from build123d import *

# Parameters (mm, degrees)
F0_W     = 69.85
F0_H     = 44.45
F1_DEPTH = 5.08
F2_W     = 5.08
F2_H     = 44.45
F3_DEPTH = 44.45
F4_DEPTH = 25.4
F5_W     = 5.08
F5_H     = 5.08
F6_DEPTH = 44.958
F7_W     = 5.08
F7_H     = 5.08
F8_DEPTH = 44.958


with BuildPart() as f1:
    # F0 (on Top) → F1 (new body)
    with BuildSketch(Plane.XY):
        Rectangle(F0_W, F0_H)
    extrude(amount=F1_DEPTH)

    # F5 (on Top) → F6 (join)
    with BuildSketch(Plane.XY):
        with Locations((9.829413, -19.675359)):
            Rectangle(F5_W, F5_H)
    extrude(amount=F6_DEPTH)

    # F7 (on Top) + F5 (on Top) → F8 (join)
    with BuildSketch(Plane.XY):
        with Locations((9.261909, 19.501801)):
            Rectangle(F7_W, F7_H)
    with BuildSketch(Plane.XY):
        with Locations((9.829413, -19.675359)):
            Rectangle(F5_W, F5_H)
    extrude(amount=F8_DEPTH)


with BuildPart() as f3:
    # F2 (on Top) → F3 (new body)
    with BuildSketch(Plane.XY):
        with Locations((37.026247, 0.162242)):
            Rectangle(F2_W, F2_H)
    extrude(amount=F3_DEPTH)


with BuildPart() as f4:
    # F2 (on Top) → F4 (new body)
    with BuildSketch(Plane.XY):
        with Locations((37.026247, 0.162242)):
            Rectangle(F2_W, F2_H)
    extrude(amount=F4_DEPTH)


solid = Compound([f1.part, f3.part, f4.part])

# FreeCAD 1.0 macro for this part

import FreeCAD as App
import Part
import Sketcher

V = App.Vector
Q = App.Units.Quantity


def add_polygon(sketch, points):
    """Adds a closed chain of lines whose ends are joined by coincident constraints."""
    first, n = sketch.GeometryCount, len(points)
    for a, b in zip(points, points[1:] + points[:1]):
        sketch.addGeometry(Part.LineSegment(App.Vector(*a, 0), App.Vector(*b, 0)), False)
    for i in range(n):
        sketch.addConstraint(Sketcher.Constraint("Coincident", first + i, 2, first + (i + 1) % n, 1))

doc = App.newDocument("Part")
body = doc.addObject("PartDesign::Body", "Body")

# Sketch on XY plane
sketch1 = body.newObject("Sketcher::SketchObject", "Sketch")
sketch1.AttachmentSupport = (doc.getObject("XY_Plane"), [""])
sketch1.MapMode = "FlatFace"
add_polygon(sketch1, [(-34.925, 22.225), (-34.925, -22.225), (34.925, -22.225), (34.925, 22.225)])  # lines 0-3
sketch1.addConstraint([
    Sketcher.Constraint("Vertical", 0),
    Sketcher.Constraint("Horizontal", 1),
    Sketcher.Constraint("Vertical", 2),
    Sketcher.Constraint("Horizontal", 3),
    Sketcher.Constraint("Symmetric", 0, 2, 2, 2, -1, 1),
    Sketcher.Constraint("DistanceX", 1, 1, 1, 2, Q("2.75 in")),
    Sketcher.Constraint("DistanceY", 0, 2, 0, 1, Q("1.75 in")),
])
pad1 = body.newObject("PartDesign::Pad", "Pad")
pad1.Profile = sketch1
pad1.Length = Q("0.2 in")

# Sketch on XY plane
sketch2 = body.newObject("Sketcher::SketchObject", "Sketch001")
sketch2.AttachmentSupport = (doc.getObject("XY_Plane"), [""])
sketch2.MapMode = "FlatFace"
add_polygon(sketch2, [(7.289413, -17.135359), (7.289413, -22.215359), (12.369413, -22.215359), (12.369413, -17.135359)])  # lines 0-3
sketch2.addConstraint([
    Sketcher.Constraint("Vertical", 0),
    Sketcher.Constraint("Horizontal", 1),
    Sketcher.Constraint("Vertical", 2),
    Sketcher.Constraint("Horizontal", 3),
    Sketcher.Constraint("Equal", 3, 0),
    Sketcher.Constraint("DistanceX", 1, 1, 1, 2, Q("0.2 in")),
    Sketcher.Constraint("DistanceY", 0, 2, -1, 1, 22.215359),
    Sketcher.Constraint("DistanceX", -1, 1, 0, 2, 7.289413),
])
pad2 = body.newObject("PartDesign::Pad", "Pad001")
pad2.Profile = sketch2
pad2.Length = Q("1.77 in")

# Sketch on XY plane
sketch3 = body.newObject("Sketcher::SketchObject", "Sketch002")
sketch3.AttachmentSupport = (doc.getObject("XY_Plane"), [""])
sketch3.MapMode = "FlatFace"
add_polygon(sketch3, [(6.721909, 22.041801), (6.721909, 16.961801), (11.801909, 16.961801), (11.801909, 22.041801)])  # lines 0-3
add_polygon(sketch3, [(7.289413, -17.135359), (7.289413, -22.215359), (12.369413, -22.215359), (12.369413, -17.135359)])  # lines 4-7
sketch3.addConstraint([
    Sketcher.Constraint("Vertical", 0),
    Sketcher.Constraint("Horizontal", 1),
    Sketcher.Constraint("Vertical", 2),
    Sketcher.Constraint("Horizontal", 3),
    Sketcher.Constraint("Vertical", 4),
    Sketcher.Constraint("Horizontal", 5),
    Sketcher.Constraint("Vertical", 6),
    Sketcher.Constraint("Horizontal", 7),
    Sketcher.Constraint("Equal", 3, 5),
    Sketcher.Constraint("Equal", 7, 0),
    Sketcher.Constraint("Equal", 2, 4),
    Sketcher.Constraint("DistanceX", 1, 1, 1, 2, Q("0.2 in")),
    Sketcher.Constraint("DistanceY", -1, 1, 0, 2, 16.961801),
    Sketcher.Constraint("DistanceX", -1, 1, 0, 2, 6.721909),
    Sketcher.Constraint("DistanceY", 4, 2, -1, 1, 22.215359),
    Sketcher.Constraint("DistanceX", -1, 1, 4, 2, 7.289413),
])
pad3 = body.newObject("PartDesign::Pad", "Pad002")
pad3.Profile = sketch3
pad3.Length = Q("1.77 in")
body2 = doc.addObject("PartDesign::Body", "Body001")

# Sketch on XY plane
sketch4 = body2.newObject("Sketcher::SketchObject", "Sketch003")
sketch4.AttachmentSupport = (doc.getObject("XY_Plane001"), [""])
sketch4.MapMode = "FlatFace"
add_polygon(sketch4, [(34.486247, 22.387242), (34.486247, -22.062758), (39.566247, -22.062758), (39.566247, 22.387242)])  # lines 0-3
sketch4.addConstraint([
    Sketcher.Constraint("Vertical", 0),
    Sketcher.Constraint("Horizontal", 1),
    Sketcher.Constraint("Vertical", 2),
    Sketcher.Constraint("Horizontal", 3),
    Sketcher.Constraint("DistanceX", 1, 1, 1, 2, Q("0.2 in")),
    Sketcher.Constraint("DistanceY", 0, 2, 0, 1, Q("1.75 in")),
    Sketcher.Constraint("DistanceX", -1, 1, 0, 2, 34.486247),
    Sketcher.Constraint("DistanceY", 0, 2, -1, 1, 22.062758),
])
pad4 = body2.newObject("PartDesign::Pad", "Pad003")
pad4.Profile = sketch4
pad4.Length = Q("1.75 in")
body3 = doc.addObject("PartDesign::Body", "Body002")

# Sketch on XY plane
sketch5 = body3.newObject("Sketcher::SketchObject", "Sketch004")
sketch5.AttachmentSupport = (doc.getObject("XY_Plane002"), [""])
sketch5.MapMode = "FlatFace"
add_polygon(sketch5, [(34.486247, 22.387242), (34.486247, -22.062758), (39.566247, -22.062758), (39.566247, 22.387242)])  # lines 0-3
sketch5.addConstraint([
    Sketcher.Constraint("Vertical", 0),
    Sketcher.Constraint("Horizontal", 1),
    Sketcher.Constraint("Vertical", 2),
    Sketcher.Constraint("Horizontal", 3),
    Sketcher.Constraint("DistanceX", 1, 1, 1, 2, Q("0.2 in")),
    Sketcher.Constraint("DistanceY", 0, 2, 0, 1, Q("1.75 in")),
    Sketcher.Constraint("DistanceX", -1, 1, 0, 2, 34.486247),
    Sketcher.Constraint("DistanceY", 0, 2, -1, 1, 22.062758),
])
pad5 = body3.newObject("PartDesign::Pad", "Pad004")
pad5.Profile = sketch5
pad5.Length = Q("1 in")

doc.recompute()
